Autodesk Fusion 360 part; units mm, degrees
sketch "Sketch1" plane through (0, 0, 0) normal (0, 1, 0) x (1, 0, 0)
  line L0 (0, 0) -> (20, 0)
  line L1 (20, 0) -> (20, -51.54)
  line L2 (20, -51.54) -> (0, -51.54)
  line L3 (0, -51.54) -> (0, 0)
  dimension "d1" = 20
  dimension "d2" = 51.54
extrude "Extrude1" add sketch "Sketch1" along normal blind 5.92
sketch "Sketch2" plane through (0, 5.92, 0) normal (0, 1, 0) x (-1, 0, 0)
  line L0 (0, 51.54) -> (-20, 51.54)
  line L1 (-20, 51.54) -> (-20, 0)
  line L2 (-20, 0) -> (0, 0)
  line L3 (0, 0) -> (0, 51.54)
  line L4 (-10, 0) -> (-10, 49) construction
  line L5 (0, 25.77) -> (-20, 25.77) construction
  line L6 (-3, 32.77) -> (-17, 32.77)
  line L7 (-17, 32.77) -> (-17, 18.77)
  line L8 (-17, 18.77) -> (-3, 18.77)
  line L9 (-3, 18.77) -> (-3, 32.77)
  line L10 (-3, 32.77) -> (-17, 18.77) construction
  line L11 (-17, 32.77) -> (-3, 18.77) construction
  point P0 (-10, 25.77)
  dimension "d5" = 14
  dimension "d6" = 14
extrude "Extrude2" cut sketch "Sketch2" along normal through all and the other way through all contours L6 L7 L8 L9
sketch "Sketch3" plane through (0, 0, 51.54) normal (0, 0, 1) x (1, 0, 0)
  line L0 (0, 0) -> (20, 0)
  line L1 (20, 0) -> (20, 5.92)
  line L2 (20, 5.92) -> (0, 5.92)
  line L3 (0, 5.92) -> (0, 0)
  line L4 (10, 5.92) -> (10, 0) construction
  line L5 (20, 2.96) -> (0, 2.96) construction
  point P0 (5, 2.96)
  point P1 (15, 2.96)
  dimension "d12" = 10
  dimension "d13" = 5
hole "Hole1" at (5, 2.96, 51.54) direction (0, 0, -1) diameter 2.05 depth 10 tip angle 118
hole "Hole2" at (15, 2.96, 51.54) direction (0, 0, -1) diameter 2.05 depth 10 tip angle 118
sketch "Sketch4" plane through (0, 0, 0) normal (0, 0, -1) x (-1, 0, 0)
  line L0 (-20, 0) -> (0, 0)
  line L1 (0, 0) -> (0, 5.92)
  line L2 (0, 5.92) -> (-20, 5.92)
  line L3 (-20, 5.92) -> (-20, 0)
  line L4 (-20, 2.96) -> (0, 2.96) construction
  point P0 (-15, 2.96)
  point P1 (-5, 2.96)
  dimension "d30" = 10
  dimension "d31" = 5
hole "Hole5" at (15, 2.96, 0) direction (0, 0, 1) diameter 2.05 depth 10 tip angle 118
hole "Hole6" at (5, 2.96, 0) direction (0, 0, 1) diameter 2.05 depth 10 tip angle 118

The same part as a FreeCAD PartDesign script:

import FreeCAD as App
import Part
import Sketcher
from FreeCAD import Vector


def add_polygon(sketch, points):
    """Adds a closed chain of lines whose ends are joined by coincident constraints."""
    first, n = sketch.GeometryCount, len(points)
    for a, b in zip(points, points[1:] + points[:1]):
        sketch.addGeometry(Part.LineSegment(App.Vector(*a, 0), App.Vector(*b, 0)), False)
    for i in range(n):
        sketch.addConstraint(Sketcher.Constraint("Coincident", first + i, 2, first + (i + 1) % n, 1))

doc = App.newDocument("Part")
params = doc.addObject("Spreadsheet::Sheet", "Params")
for row, (alias, value) in enumerate([
    ("sketch1_width", "20 mm"),
    ("sketch1_height", "51.54 mm"),
    ("pad1_length", "5.92 mm"),
    ("sketch2_width", "14 mm"),
    ("sketch3_diameter", "2.05 mm"),
    ("hole_diameter", "2.05 mm"),
    ("hole_depth", "10 mm"),
    ("sketch4_diameter", "2.05 mm"),
    ("hole2_diameter", "2.05 mm"),
    ("hole2_depth", "10 mm"),
    ("sketch5_diameter", "2.05 mm"),
    ("hole3_diameter", "2.05 mm"),
    ("hole3_depth", "10 mm"),
    ("sketch6_diameter", "2.05 mm"),
    ("hole4_diameter", "2.05 mm"),
    ("hole4_depth", "10 mm"),
], start=1):
    params.set(f"A{row}", alias)
    params.set(f"B{row}", "=" + value)
    params.setAlias(f"B{row}", alias)

body = doc.addObject("PartDesign::Body", "Body")

sketch1 = body.newObject("Sketcher::SketchObject", "Sketch")
sketch1.AttachmentSupport = (doc.getObject("XZ_Plane"), [""])
sketch1.MapMode = "FlatFace"
add_polygon(sketch1, [(20, 0), (0, 0), (0, 51.54), (20, 51.54)])
sketch1.addConstraint(Sketcher.Constraint("Horizontal", 0))
sketch1.addConstraint(Sketcher.Constraint("Vertical", 1))
sketch1.addConstraint(Sketcher.Constraint("Horizontal", 2))
sketch1.addConstraint(Sketcher.Constraint("Vertical", 3))
sketch1.addConstraint(Sketcher.Constraint("Coincident", 0, 2, -1, 1))
sketch1.addConstraint(Sketcher.Constraint("DistanceX", 0, 2, 0, 1, 20.0))
sketch1.addConstraint(Sketcher.Constraint("DistanceY", 1, 1, 1, 2, 51.54))
sketch1.setExpression("Constraints[9]", "Params.sketch1_width")
sketch1.setExpression("Constraints[10]", "Params.sketch1_height")
pad1 = body.newObject("PartDesign::Pad", "Pad")
pad1.Profile = sketch1
pad1.setExpression("Length", "Params.pad1_length")
pad1.Reversed = True

sketch2 = body.newObject("Sketcher::SketchObject", "Sketch001")
sketch2.AttachmentSupport = (doc.getObject("XZ_Plane"), [""])
sketch2.MapMode = "FlatFace"
sketch2.AttachmentOffset = App.Placement(Vector(0, 0, -5.92), App.Rotation())
add_polygon(sketch2, [(3, 18.77), (3, 32.77), (17, 32.77), (17, 18.77)])
sketch2.addConstraint(Sketcher.Constraint("Vertical", 0))
sketch2.addConstraint(Sketcher.Constraint("Horizontal", 1))
sketch2.addConstraint(Sketcher.Constraint("Vertical", 2))
sketch2.addConstraint(Sketcher.Constraint("Horizontal", 3))
sketch2.addConstraint(Sketcher.Constraint("Equal", 3, 0))
sketch2.addConstraint(Sketcher.Constraint("DistanceX", 1, 1, 1, 2, 14.0))
sketch2.addConstraint(Sketcher.Constraint("DistanceX", -1, 1, 0, 2, 3.0))
sketch2.addConstraint(Sketcher.Constraint("DistanceY", -1, 1, 0, 2, 32.77))
sketch2.setExpression("Constraints[9]", "Params.sketch2_width")
pocket1 = body.newObject("PartDesign::Pocket", "Pocket")
pocket1.Profile = sketch2
pocket1.Type = "ThroughAll"
pocket1.Midplane = True

sketch3 = body.newObject("Sketcher::SketchObject", "Sketch002")
sketch3.AttachmentSupport = (doc.getObject("XY_Plane"), [""])
sketch3.MapMode = "FlatFace"
sketch3.AttachmentOffset = App.Placement(Vector(0, 0, 51.54), App.Rotation())
sketch3.addGeometry(Part.Circle(Vector(5, 2.96, 0), Vector(0, 0, 1), 1.025), False)
sketch3.addConstraint(Sketcher.Constraint("Diameter", 0, 2.05))
sketch3.addConstraint(Sketcher.Constraint("DistanceX", -1, 1, 0, 3, 5.0))
sketch3.addConstraint(Sketcher.Constraint("DistanceY", -1, 1, 0, 3, 2.96))
sketch3.setExpression("Constraints[0]", "Params.sketch3_diameter")
doc.recompute()
hole = body.newObject("PartDesign::Hole", "Hole")
hole.Profile = sketch3
hole.ThreadType = "None"
hole.setExpression("Diameter", "Params.hole_diameter")
hole.DepthType = "Dimension"
hole.setExpression("Depth", "Params.hole_depth")
hole.DrillPoint = "Angled"
hole.DrillPointAngle = 118

sketch4 = body.newObject("Sketcher::SketchObject", "Sketch003")
sketch4.AttachmentSupport = (doc.getObject("XY_Plane"), [""])
sketch4.MapMode = "FlatFace"
sketch4.AttachmentOffset = App.Placement(Vector(0, 0, 51.54), App.Rotation())
sketch4.addGeometry(Part.Circle(Vector(15, 2.96, 0), Vector(0, 0, 1), 1.025), False)
sketch4.addConstraint(Sketcher.Constraint("Diameter", 0, 2.05))
sketch4.addConstraint(Sketcher.Constraint("DistanceX", -1, 1, 0, 3, 15.0))
sketch4.addConstraint(Sketcher.Constraint("DistanceY", -1, 1, 0, 3, 2.96))
sketch4.setExpression("Constraints[0]", "Params.sketch4_diameter")
doc.recompute()
hole2 = body.newObject("PartDesign::Hole", "Hole001")
hole2.Profile = sketch4
hole2.ThreadType = "None"
hole2.setExpression("Diameter", "Params.hole2_diameter")
hole2.DepthType = "Dimension"
hole2.setExpression("Depth", "Params.hole2_depth")
hole2.DrillPoint = "Angled"
hole2.DrillPointAngle = 118

sketch5 = body.newObject("Sketcher::SketchObject", "Sketch004")
sketch5.AttachmentSupport = (doc.getObject("XY_Plane"), [""])
sketch5.MapMode = "FlatFace"
sketch5.addGeometry(Part.Circle(Vector(15, 2.96, 0), Vector(0, 0, 1), 1.025), False)
sketch5.addConstraint(Sketcher.Constraint("Diameter", 0, 2.05))
sketch5.addConstraint(Sketcher.Constraint("DistanceX", -1, 1, 0, 3, 15.0))
sketch5.addConstraint(Sketcher.Constraint("DistanceY", -1, 1, 0, 3, 2.96))
sketch5.setExpression("Constraints[0]", "Params.sketch5_diameter")
doc.recompute()
hole3 = body.newObject("PartDesign::Hole", "Hole002")
hole3.Profile = sketch5
hole3.ThreadType = "None"
hole3.setExpression("Diameter", "Params.hole3_diameter")
hole3.DepthType = "Dimension"
hole3.setExpression("Depth", "Params.hole3_depth")
hole3.DrillPoint = "Angled"
hole3.DrillPointAngle = 118
hole3.Reversed = True

sketch6 = body.newObject("Sketcher::SketchObject", "Sketch005")
sketch6.AttachmentSupport = (doc.getObject("XY_Plane"), [""])
sketch6.MapMode = "FlatFace"
sketch6.addGeometry(Part.Circle(Vector(5, 2.96, 0), Vector(0, 0, 1), 1.025), False)
sketch6.addConstraint(Sketcher.Constraint("Diameter", 0, 2.05))
sketch6.addConstraint(Sketcher.Constraint("DistanceX", -1, 1, 0, 3, 5.0))
sketch6.addConstraint(Sketcher.Constraint("DistanceY", -1, 1, 0, 3, 2.96))
sketch6.setExpression("Constraints[0]", "Params.sketch6_diameter")
doc.recompute()
hole4 = body.newObject("PartDesign::Hole", "Hole003")
hole4.Profile = sketch6
hole4.ThreadType = "None"
hole4.setExpression("Diameter", "Params.hole4_diameter")
hole4.DepthType = "Dimension"
hole4.setExpression("Depth", "Params.hole4_depth")
hole4.DrillPoint = "Angled"
hole4.DrillPointAngle = 118
hole4.Reversed = True

doc.recompute()
